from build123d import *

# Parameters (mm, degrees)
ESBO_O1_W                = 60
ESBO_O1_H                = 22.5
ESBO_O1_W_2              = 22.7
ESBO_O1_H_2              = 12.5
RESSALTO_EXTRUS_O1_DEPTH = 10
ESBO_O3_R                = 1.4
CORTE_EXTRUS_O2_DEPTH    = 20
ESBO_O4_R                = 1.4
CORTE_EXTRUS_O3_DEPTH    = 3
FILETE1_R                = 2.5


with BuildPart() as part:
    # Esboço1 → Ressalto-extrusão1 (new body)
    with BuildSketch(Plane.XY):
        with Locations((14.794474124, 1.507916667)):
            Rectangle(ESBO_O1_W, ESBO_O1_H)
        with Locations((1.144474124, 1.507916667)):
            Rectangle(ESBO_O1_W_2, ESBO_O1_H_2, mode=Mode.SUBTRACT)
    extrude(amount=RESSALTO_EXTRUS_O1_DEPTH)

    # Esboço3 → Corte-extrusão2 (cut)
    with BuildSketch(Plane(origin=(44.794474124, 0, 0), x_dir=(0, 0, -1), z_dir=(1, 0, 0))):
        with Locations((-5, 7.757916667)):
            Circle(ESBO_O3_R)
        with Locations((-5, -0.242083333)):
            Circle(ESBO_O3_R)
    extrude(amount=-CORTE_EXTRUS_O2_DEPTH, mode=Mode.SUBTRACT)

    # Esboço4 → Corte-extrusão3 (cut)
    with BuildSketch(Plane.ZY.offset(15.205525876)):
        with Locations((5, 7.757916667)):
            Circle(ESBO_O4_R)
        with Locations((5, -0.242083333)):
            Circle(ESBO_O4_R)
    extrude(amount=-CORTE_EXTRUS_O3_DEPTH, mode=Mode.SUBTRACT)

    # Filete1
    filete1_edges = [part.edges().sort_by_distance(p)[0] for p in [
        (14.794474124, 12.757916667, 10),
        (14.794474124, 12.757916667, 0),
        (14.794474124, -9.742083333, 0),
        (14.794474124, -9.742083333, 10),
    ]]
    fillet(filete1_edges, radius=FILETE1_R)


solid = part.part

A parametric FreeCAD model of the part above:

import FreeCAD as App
import Part
import Sketcher


def edges_at(feature, points):
    """Names of the edges that pass closest to the given points."""
    edges = feature.Shape.Edges
    near = lambda p: min(range(len(edges)), key=lambda i: edges[i].distToShape(Part.Vertex(*p))[0])
    return sorted({f"Edge{near(p) + 1}" for p in points})

doc = App.newDocument("Part")
body = doc.addObject("PartDesign::Body", "Body")

sketch1 = doc.addObject("Sketcher::SketchObject", "Sketch")
body.addObject(sketch1)
sketch1.AttachmentSupport = (doc.XY_Plane, [""])
sketch1.MapMode = "FlatFace"
sketch1.addGeometry([
    Part.LineSegment(App.Vector(-15, 13, 0), App.Vector(-15, -10, 0)),
    Part.LineSegment(App.Vector(-15, -10, 0), App.Vector(45, -10, 0)),
    Part.LineSegment(App.Vector(45, -10, 0), App.Vector(45, 13, 0)),
    Part.LineSegment(App.Vector(45, 13, 0), App.Vector(-15, 13, 0)),
    Part.LineSegment(App.Vector(12, -5, 0), App.Vector(-10, -5, 0)),
    Part.LineSegment(App.Vector(-10, -5, 0), App.Vector(-10, 8, 0)),
    Part.LineSegment(App.Vector(-10, 8, 0), App.Vector(12, 8, 0)),
    Part.LineSegment(App.Vector(12, 8, 0), App.Vector(12, -5, 0)),
], False)
sketch1.addConstraint([
    Sketcher.Constraint("Coincident", 0, 2, 1, 1),
    Sketcher.Constraint("Coincident", 1, 2, 2, 1),
    Sketcher.Constraint("Coincident", 2, 2, 3, 1),
    Sketcher.Constraint("Coincident", 3, 2, 0, 1),
    Sketcher.Constraint("Coincident", 4, 2, 5, 1),
    Sketcher.Constraint("Coincident", 5, 2, 6, 1),
    Sketcher.Constraint("Coincident", 6, 2, 7, 1),
    Sketcher.Constraint("Coincident", 7, 2, 4, 1),
    Sketcher.Constraint("Vertical", 0),
    Sketcher.Constraint("Horizontal", 1),
    Sketcher.Constraint("Vertical", 2),
    Sketcher.Constraint("Horizontal", 3),
    Sketcher.Constraint("Horizontal", 4),
    Sketcher.Constraint("Vertical", 5),
    Sketcher.Constraint("Horizontal", 6),
    Sketcher.Constraint("Vertical", 7),
    Sketcher.Constraint("DistanceX", 1, 1, 1, 2, 60.0),
    Sketcher.Constraint("DistanceX", 4, 2, 4, 1, 22.7),
    Sketcher.Constraint("DistanceY", 0, 2, 0, 1, 22.5),
    Sketcher.Constraint("DistanceY", 5, 1, 5, 2, 12.5),
    Sketcher.Constraint("DistanceX", 0, 2, 4, 2, 5.0),
    Sketcher.Constraint("DistanceY", 0, 2, 4, 2, 5.0),
    Sketcher.Constraint("DistanceX", 0, 2, -1, 1, 15.205526),
    Sketcher.Constraint("DistanceY", 0, 2, -1, 1, 9.742083),
])
pad1 = doc.addObject("PartDesign::Pad", "Pad")
body.addObject(pad1)
pad1.Profile = sketch1
pad1.Length = 10

sketch2 = doc.addObject("Sketcher::SketchObject", "Sketch001")
body.addObject(sketch2)
sketch2.AttachmentSupport = (doc.YZ_Plane, [""])
sketch2.MapMode = "FlatFace"
sketch2.AttachmentOffset = App.Placement(App.Vector(0, 0, 44.794474), App.Rotation())
sketch2.addGeometry([
    Part.Circle(App.Vector(7.8, 5, 0), App.Vector(0, 0, 1), 1.4),
    Part.Circle(App.Vector(-0.2, 5, 0), App.Vector(0, 0, 1), 1.4),
], False)
sketch2.addConstraint([
    Sketcher.Constraint("Equal", 0, 1),
    Sketcher.Constraint("Horizontal", 0, 3, 1, 3),
    Sketcher.Constraint("Diameter", 0, 2.8),
    Sketcher.Constraint("DistanceY", -1, 1, 0, 3, 5.0),
    Sketcher.Constraint("DistanceX", 1, 3, 0, 3, 8.0),
    Sketcher.Constraint("DistanceX", -1, 1, 0, 3, 7.757917),
])
pocket1 = doc.addObject("PartDesign::Pocket", "Pocket")
body.addObject(pocket1)
pocket1.Profile = sketch2
pocket1.Length = 20

sketch3 = doc.addObject("Sketcher::SketchObject", "Sketch002")
body.addObject(sketch3)
sketch3.AttachmentSupport = (doc.YZ_Plane, [""])
sketch3.MapMode = "FlatFace"
sketch3.AttachmentOffset = App.Placement(App.Vector(0, 0, -15.205526), App.Rotation())
sketch3.addGeometry([
    Part.Circle(App.Vector(7.8, 5, 0), App.Vector(0, 0, 1), 1.4),
    Part.Circle(App.Vector(-0.2, 5, 0), App.Vector(0, 0, 1), 1.4),
], False)
sketch3.addConstraint([
    Sketcher.Constraint("Equal", 0, 1),
    Sketcher.Constraint("Horizontal", 0, 3, 1, 3),
    Sketcher.Constraint("Diameter", 0, 2.8),
    Sketcher.Constraint("DistanceY", -1, 1, 0, 3, 5.0),
    Sketcher.Constraint("DistanceX", 1, 3, 0, 3, 8.0),
    Sketcher.Constraint("DistanceX", -1, 1, 0, 3, 7.757917),
])
pocket2 = doc.addObject("PartDesign::Pocket", "Pocket001")
body.addObject(pocket2)
pocket2.Profile = sketch3
pocket2.Length = 3
pocket2.Reversed = True
doc.recompute()

fillet = doc.addObject("PartDesign::Fillet", "Fillet")
body.addObject(fillet)
fillet.Base = (pocket2, edges_at(pocket2, [
    (14.794, 12.758, 10),
    (14.794, 12.758, 0),
    (14.794, -9.742, 0),
    (14.794, -9.742, 10),
]))
fillet.Radius = 2.5

doc.recompute()
